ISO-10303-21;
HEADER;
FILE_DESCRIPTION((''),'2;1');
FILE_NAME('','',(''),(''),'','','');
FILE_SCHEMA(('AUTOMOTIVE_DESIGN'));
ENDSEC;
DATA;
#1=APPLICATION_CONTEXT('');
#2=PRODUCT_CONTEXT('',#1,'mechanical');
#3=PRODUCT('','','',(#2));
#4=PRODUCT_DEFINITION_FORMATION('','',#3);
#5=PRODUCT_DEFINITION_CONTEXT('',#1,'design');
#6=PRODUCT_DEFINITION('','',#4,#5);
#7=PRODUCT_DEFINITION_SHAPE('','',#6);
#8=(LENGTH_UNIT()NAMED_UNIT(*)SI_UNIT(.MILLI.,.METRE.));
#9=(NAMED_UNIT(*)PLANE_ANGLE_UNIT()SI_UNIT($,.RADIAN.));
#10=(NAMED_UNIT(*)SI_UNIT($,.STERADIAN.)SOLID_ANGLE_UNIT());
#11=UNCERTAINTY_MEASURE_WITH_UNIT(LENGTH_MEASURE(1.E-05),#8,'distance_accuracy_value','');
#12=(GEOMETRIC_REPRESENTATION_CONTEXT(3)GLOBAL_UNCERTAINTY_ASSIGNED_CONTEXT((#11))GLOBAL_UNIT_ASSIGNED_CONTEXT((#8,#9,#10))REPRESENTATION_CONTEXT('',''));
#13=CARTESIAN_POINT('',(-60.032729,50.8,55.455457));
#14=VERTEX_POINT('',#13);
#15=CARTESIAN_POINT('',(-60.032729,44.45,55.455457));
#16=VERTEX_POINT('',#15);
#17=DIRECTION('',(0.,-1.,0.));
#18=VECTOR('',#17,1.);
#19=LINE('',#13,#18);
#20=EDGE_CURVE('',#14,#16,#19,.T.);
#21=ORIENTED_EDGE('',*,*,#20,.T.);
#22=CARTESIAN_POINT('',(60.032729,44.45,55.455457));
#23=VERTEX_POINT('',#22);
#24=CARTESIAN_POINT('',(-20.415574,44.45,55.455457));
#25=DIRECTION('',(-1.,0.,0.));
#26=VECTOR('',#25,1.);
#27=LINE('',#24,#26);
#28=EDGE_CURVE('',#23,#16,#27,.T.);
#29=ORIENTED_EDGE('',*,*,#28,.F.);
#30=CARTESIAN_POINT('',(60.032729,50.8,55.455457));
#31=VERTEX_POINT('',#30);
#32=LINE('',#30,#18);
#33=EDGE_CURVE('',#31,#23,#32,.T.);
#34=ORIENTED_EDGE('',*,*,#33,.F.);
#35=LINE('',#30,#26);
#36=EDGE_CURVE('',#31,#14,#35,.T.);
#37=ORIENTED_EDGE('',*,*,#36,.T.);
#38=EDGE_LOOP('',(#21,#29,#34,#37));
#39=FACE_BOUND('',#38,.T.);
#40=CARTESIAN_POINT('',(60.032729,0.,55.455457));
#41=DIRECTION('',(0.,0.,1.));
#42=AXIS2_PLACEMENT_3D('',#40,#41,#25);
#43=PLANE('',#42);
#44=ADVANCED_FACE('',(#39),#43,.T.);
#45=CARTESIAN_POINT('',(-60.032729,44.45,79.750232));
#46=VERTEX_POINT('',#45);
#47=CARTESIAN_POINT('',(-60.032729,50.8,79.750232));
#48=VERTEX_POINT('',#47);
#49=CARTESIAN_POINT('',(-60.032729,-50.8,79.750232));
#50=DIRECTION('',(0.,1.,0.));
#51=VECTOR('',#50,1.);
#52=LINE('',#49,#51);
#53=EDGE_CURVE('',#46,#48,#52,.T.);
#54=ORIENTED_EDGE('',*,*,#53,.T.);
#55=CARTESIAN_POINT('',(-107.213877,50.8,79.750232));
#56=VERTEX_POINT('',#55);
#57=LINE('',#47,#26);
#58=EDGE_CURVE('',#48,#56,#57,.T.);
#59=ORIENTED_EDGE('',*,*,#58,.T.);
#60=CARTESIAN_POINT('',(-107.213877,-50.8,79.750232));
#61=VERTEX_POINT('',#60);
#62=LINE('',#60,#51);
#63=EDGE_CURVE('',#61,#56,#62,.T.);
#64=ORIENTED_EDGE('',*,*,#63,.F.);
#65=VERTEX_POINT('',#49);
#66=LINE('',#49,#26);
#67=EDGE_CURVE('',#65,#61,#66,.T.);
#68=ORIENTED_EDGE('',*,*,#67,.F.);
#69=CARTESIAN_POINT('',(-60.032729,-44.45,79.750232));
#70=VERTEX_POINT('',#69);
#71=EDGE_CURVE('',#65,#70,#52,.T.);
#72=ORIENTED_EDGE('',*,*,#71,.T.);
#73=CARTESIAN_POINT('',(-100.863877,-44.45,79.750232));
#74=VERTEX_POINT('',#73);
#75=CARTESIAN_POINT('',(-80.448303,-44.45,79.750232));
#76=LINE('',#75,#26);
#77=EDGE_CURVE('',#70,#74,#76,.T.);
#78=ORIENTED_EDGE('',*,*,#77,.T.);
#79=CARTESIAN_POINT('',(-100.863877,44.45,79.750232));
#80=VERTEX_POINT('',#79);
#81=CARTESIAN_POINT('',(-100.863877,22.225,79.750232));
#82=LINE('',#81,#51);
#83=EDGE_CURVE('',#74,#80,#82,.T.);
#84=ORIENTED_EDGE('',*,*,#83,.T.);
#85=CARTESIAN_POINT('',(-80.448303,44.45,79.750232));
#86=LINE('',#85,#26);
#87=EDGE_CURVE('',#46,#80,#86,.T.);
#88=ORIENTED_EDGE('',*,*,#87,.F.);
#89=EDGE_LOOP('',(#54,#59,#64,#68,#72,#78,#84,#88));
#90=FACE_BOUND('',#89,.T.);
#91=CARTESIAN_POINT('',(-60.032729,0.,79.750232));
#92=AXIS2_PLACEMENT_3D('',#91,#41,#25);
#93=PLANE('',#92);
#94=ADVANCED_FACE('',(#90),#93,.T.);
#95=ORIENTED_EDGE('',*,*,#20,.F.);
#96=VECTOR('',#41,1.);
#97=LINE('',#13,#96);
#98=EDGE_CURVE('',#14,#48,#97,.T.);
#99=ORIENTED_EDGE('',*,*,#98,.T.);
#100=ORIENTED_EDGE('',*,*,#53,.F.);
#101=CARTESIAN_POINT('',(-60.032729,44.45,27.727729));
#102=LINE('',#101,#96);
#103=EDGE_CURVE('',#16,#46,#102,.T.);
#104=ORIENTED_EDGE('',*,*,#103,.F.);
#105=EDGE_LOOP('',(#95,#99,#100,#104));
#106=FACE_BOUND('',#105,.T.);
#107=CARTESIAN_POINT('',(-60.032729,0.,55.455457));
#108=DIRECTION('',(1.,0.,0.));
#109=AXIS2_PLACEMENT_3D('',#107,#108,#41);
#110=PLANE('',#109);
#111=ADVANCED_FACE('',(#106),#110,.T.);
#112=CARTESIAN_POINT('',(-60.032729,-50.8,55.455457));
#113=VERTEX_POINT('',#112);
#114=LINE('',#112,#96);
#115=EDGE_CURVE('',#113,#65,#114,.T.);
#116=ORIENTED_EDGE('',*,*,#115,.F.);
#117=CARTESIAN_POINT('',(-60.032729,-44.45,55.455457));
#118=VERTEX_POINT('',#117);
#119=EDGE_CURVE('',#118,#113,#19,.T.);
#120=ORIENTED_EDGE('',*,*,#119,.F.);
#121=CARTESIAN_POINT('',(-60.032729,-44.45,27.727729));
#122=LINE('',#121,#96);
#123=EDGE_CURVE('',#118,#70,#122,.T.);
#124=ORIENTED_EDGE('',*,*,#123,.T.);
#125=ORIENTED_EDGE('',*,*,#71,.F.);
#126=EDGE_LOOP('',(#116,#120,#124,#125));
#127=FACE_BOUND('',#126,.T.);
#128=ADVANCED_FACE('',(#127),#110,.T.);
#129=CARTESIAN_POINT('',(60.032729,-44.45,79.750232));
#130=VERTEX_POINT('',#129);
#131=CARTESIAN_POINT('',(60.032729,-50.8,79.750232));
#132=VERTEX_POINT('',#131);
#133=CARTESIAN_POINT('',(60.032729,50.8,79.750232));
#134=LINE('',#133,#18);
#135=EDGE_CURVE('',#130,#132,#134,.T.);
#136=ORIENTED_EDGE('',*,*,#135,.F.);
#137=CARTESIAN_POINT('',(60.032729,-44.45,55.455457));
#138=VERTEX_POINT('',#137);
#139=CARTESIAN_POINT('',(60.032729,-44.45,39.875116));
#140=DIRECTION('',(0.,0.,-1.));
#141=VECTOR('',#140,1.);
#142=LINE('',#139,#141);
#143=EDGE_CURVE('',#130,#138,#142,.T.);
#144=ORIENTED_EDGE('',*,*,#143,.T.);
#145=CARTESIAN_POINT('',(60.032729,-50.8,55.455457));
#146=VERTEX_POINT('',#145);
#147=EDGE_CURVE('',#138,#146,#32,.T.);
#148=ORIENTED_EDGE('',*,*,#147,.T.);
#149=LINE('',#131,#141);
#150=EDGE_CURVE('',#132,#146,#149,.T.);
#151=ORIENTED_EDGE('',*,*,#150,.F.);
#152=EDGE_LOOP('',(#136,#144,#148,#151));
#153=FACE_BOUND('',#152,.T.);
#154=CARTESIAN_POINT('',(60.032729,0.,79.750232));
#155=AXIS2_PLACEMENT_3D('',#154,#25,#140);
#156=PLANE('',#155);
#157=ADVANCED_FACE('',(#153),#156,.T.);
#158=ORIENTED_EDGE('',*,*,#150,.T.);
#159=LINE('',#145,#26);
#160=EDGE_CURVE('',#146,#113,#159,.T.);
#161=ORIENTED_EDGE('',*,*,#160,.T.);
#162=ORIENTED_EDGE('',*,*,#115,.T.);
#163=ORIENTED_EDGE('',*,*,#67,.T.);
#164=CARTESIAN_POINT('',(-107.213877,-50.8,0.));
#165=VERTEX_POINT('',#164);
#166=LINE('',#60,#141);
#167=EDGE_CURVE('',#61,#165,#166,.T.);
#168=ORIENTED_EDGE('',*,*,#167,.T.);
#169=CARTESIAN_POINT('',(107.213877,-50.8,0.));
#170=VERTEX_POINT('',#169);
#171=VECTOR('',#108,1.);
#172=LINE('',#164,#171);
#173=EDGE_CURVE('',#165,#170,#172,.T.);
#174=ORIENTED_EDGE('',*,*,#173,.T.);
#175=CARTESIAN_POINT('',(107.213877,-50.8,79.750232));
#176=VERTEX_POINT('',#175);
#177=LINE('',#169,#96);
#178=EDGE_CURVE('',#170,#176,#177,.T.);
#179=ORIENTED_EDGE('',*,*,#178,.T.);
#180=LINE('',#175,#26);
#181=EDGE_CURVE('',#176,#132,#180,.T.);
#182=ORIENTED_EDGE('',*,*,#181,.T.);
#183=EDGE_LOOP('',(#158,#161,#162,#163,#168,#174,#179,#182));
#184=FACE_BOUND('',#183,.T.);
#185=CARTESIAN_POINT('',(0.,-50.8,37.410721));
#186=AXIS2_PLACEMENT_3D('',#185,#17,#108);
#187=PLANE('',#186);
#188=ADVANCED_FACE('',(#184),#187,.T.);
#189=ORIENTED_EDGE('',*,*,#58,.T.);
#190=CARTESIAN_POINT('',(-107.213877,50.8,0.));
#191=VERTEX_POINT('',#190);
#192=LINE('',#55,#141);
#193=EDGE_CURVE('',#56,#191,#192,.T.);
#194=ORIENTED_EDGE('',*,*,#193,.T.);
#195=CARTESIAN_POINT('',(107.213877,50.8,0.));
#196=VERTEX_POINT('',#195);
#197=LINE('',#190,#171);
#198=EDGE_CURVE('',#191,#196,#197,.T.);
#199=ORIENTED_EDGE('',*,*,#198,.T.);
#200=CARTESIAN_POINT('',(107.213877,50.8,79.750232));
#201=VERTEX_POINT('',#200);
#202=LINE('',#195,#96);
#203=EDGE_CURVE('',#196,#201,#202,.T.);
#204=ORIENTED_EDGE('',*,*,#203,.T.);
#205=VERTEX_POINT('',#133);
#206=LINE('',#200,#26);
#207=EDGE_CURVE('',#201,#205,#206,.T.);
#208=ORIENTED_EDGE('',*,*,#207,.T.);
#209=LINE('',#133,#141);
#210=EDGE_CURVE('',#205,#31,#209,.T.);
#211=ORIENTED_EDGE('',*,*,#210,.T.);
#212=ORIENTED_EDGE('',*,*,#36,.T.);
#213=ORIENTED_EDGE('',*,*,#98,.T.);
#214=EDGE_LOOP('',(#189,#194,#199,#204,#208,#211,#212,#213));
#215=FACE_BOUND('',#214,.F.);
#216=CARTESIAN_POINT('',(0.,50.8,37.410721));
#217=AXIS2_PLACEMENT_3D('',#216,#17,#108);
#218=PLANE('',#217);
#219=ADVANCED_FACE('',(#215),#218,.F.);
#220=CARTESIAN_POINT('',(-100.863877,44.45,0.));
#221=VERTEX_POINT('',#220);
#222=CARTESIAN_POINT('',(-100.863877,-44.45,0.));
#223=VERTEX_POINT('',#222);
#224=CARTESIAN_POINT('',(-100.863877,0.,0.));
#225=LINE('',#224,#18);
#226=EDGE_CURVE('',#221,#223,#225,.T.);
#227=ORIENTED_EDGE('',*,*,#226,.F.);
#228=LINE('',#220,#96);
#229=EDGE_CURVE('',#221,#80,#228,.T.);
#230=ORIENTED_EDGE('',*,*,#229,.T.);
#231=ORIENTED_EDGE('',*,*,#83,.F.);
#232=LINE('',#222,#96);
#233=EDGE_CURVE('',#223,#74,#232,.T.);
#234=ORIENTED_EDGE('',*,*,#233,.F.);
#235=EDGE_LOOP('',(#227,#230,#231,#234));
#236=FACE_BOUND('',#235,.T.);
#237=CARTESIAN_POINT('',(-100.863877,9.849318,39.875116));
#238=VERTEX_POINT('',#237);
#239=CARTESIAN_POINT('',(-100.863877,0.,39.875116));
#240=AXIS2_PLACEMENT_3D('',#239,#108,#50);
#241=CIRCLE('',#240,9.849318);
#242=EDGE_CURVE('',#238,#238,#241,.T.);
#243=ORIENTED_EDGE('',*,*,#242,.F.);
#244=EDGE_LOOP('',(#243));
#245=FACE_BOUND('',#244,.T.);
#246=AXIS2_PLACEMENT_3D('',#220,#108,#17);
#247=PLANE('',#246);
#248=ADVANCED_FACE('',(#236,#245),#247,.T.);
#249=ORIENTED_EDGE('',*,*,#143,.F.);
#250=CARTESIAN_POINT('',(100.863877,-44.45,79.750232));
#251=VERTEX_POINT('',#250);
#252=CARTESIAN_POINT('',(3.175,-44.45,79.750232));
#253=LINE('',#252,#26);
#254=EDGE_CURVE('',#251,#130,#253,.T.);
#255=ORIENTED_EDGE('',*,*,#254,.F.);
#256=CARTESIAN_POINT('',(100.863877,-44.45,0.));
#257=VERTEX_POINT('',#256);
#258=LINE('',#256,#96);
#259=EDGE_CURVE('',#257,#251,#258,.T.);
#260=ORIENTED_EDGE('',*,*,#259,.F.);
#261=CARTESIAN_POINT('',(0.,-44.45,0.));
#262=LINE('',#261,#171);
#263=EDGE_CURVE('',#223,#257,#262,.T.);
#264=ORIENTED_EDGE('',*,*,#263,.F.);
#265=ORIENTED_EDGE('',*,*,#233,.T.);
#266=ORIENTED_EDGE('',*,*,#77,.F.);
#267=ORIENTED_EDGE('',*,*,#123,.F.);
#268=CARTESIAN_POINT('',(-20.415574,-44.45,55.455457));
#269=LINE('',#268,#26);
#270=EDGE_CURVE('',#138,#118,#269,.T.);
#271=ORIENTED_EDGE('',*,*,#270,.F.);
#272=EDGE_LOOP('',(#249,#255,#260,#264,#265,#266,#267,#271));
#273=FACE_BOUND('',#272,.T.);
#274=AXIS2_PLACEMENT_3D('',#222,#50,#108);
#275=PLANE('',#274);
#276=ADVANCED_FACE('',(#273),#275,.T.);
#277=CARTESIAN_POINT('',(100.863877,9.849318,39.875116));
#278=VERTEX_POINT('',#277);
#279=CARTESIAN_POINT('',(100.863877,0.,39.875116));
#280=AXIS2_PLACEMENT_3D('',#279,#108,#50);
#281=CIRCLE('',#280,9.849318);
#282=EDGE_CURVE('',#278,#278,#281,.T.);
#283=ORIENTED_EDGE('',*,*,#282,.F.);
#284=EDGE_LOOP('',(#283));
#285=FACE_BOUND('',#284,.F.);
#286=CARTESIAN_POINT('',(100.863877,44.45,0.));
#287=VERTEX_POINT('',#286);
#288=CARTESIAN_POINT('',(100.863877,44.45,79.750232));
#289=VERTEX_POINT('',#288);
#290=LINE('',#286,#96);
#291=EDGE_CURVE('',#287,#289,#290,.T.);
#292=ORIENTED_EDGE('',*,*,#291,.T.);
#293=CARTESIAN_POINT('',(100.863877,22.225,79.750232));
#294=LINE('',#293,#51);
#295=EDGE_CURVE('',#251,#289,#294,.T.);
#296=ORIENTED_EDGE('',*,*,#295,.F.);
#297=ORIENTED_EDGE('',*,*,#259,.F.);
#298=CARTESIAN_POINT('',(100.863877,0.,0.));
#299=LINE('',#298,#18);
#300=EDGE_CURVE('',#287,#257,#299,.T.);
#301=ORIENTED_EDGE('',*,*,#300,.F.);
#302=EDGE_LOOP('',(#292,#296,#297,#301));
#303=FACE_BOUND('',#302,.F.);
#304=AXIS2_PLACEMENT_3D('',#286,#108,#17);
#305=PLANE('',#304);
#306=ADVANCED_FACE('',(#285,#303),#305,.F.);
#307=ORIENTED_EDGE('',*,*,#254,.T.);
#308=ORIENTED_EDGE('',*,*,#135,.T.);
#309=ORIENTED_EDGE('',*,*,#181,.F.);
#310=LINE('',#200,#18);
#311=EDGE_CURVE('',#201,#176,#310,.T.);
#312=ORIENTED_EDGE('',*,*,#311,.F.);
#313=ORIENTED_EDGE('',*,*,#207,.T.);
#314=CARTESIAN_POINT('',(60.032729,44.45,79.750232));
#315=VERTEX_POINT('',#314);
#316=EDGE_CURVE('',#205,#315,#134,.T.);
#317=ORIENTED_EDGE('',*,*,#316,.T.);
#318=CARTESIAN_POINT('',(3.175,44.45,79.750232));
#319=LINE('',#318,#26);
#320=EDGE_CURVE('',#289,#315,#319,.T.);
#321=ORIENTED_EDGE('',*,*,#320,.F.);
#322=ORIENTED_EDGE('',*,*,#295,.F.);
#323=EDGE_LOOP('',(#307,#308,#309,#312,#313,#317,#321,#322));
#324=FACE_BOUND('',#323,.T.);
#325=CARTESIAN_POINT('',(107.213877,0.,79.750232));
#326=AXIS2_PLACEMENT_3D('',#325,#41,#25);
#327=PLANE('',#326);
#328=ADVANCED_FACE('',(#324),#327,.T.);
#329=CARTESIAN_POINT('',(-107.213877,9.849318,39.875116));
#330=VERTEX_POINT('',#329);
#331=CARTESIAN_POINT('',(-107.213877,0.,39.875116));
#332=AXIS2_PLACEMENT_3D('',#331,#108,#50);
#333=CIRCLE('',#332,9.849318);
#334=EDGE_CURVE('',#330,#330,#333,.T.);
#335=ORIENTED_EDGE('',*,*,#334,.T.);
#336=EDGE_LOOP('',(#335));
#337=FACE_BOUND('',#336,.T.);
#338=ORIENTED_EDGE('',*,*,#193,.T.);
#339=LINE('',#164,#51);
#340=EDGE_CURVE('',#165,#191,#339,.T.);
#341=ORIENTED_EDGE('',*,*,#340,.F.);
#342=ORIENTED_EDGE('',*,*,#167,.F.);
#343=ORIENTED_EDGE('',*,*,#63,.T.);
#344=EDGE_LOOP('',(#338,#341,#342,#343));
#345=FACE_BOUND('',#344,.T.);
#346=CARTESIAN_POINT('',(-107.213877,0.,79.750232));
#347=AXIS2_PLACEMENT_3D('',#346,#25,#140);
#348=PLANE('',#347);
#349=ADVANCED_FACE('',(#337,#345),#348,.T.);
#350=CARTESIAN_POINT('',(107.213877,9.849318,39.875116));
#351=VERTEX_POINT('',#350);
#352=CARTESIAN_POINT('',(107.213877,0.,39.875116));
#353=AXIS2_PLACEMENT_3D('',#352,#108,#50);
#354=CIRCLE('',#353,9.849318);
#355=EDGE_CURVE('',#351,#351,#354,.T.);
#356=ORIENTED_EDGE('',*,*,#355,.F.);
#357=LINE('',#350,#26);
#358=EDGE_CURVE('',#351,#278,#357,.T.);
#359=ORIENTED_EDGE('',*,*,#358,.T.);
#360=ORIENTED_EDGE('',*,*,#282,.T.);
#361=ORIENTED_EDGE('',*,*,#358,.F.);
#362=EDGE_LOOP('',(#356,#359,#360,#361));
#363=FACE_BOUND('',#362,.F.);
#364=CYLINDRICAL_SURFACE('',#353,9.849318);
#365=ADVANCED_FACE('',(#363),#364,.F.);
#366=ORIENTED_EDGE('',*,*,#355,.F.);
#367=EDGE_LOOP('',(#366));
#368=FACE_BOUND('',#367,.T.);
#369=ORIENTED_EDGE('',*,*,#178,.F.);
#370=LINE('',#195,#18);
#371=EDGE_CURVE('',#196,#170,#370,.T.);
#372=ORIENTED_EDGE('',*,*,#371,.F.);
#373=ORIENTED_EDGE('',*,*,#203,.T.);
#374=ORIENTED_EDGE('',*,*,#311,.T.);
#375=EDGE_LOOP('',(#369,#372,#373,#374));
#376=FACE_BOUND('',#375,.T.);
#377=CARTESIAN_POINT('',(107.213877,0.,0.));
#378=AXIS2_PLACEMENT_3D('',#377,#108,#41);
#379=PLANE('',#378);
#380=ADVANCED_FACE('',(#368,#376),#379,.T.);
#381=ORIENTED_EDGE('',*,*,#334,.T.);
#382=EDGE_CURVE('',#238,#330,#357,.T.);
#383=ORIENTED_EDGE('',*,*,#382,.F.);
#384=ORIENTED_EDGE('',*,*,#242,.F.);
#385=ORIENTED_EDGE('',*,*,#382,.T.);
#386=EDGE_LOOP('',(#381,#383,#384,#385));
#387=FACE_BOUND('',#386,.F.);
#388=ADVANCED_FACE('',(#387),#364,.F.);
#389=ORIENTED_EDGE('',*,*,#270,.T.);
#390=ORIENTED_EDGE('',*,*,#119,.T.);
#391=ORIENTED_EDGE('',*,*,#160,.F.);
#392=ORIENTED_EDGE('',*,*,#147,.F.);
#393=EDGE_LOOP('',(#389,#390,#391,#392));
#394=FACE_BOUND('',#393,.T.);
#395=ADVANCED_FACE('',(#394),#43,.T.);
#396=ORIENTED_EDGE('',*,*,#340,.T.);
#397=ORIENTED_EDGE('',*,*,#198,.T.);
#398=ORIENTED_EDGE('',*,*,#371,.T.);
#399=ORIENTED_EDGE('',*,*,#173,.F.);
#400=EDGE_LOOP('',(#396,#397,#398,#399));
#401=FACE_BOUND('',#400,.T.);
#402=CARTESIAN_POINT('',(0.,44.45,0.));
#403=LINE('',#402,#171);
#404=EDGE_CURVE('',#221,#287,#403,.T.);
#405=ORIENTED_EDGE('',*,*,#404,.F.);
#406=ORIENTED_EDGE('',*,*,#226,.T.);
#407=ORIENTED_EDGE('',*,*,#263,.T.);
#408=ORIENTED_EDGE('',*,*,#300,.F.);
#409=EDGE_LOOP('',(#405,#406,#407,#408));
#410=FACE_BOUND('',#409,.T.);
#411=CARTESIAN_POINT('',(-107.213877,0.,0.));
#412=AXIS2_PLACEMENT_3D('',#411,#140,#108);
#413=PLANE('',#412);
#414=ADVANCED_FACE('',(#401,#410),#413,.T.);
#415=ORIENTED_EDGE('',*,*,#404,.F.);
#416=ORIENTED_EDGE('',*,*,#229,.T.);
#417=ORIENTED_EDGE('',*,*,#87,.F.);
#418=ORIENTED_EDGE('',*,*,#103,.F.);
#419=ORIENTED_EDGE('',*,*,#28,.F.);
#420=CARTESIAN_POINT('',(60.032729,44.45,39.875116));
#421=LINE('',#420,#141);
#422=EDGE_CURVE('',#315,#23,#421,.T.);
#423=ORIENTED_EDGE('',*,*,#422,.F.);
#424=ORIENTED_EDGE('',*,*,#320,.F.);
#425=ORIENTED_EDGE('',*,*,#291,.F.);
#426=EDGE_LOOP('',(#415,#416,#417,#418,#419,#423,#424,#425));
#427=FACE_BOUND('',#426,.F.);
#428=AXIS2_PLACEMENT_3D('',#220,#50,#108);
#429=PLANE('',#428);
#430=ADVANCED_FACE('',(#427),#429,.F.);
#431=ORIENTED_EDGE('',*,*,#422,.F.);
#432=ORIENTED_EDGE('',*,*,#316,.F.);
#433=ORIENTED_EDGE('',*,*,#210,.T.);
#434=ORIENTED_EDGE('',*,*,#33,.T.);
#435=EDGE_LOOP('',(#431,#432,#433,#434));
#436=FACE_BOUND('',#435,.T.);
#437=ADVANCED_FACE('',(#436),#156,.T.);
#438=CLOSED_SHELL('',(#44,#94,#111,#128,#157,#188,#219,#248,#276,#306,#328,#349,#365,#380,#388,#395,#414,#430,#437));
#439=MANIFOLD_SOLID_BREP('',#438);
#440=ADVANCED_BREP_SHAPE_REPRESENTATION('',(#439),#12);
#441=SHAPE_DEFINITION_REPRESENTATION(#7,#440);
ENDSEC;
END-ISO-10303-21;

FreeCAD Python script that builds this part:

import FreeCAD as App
import Part
import Sketcher
Q = App.Units.Quantity


def add_polygon(sketch, points):
    """Adds a closed chain of lines whose ends are joined by coincident constraints."""
    first, n = sketch.GeometryCount, len(points)
    for a, b in zip(points, points[1:] + points[:1]):
        sketch.addGeometry(Part.LineSegment(App.Vector(*a, 0), App.Vector(*b, 0)), False)
    for i in range(n):
        sketch.addConstraint(Sketcher.Constraint("Coincident", first + i, 2, first + (i + 1) % n, 1))

doc = App.newDocument("Part")
body = doc.addObject("PartDesign::Body", "Body")

sketch1 = body.newObject("Sketcher::SketchObject", "Sketch")
sketch1.AttachmentSupport = (doc.getObject("XZ_Plane"), [""])
sketch1.MapMode = "FlatFace"
add_polygon(sketch1, [(-107, 0), (107, 0), (107, 80), (60, 80), (60, 55), (-60, 55), (-60, 80), (-107, 80)])
sketch1.addConstraint(Sketcher.Constraint("Horizontal", 0))
sketch1.addConstraint(Sketcher.Constraint("Vertical", 1))
sketch1.addConstraint(Sketcher.Constraint("Horizontal", 2))
sketch1.addConstraint(Sketcher.Constraint("Vertical", 3))
sketch1.addConstraint(Sketcher.Constraint("Horizontal", 4))
sketch1.addConstraint(Sketcher.Constraint("Vertical", 5))
sketch1.addConstraint(Sketcher.Constraint("Horizontal", 6))
sketch1.addConstraint(Sketcher.Constraint("Vertical", 7))
sketch1.addConstraint(Sketcher.Constraint("Symmetric", 0, 2, 7, 2, -1, 1))
sketch1.addConstraint(Sketcher.Constraint("Symmetric", 2, 2, 5, 2, -2))
sketch1.addConstraint(Sketcher.Constraint("DistanceX", 4, 2, 4, 1, 120.065458))
sketch1.addConstraint(Sketcher.Constraint("DistanceY", 1, 1, 1, 2, 79.750232))
sketch1.addConstraint(Sketcher.Constraint("DistanceX", 0, 1, 0, 2, 214.427754))
sketch1.addConstraint(Sketcher.Constraint("DistanceY", 3, 2, 3, 1, 24.294775))
pad1 = body.newObject("PartDesign::Pad", "Pad")
pad1.Profile = sketch1
pad1.Type = "TwoLengths"
pad1.Length = Q("2 in")
pad1.Length2 = Q("2 in")

sketch2 = body.newObject("Sketcher::SketchObject", "Sketch001")
sketch2.AttachmentSupport = (doc.getObject("YZ_Plane"), [""])
sketch2.MapMode = "FlatFace"
sketch2.AttachmentOffset = App.Placement(App.Vector(0, 0, 107.213877), App.Rotation())
sketch2.addGeometry(Part.Circle(App.Vector(0, 40, 0), App.Vector(0, 0, 1), 10), False)
sketch2.addConstraint(Sketcher.Constraint("PointOnObject", 0, 3, -2))
sketch2.addConstraint(Sketcher.Constraint("Diameter", 0, 19.698636))
sketch2.addConstraint(Sketcher.Constraint("DistanceY", -1, 1, 0, 3, 39.875116))
pocket1 = body.newObject("PartDesign::Pocket", "Pocket")
pocket1.Profile = sketch2
pocket1.Type = "ThroughAll"

sketch3 = body.newObject("Sketcher::SketchObject", "Sketch002")
sketch3.AttachmentSupport = (doc.getObject("XY_Plane"), [""])
sketch3.MapMode = "FlatFace"
add_polygon(sketch3, [(-101, -44), (-101, 44), (101, 44), (101, -44)])
sketch3.addConstraint(Sketcher.Constraint("Vertical", 0))
sketch3.addConstraint(Sketcher.Constraint("Horizontal", 1))
sketch3.addConstraint(Sketcher.Constraint("Vertical", 2))
sketch3.addConstraint(Sketcher.Constraint("Horizontal", 3))
sketch3.addConstraint(Sketcher.Constraint("Symmetric", 0, 2, 2, 2, -1, 1))
sketch3.addConstraint(Sketcher.Constraint("DistanceY", 0, 1, 0, 2, Q("3.5 in")))
sketch3.addConstraint(Sketcher.Constraint("DistanceX", 1, 1, 1, 2, 201.727754))
pocket2 = body.newObject("PartDesign::Pocket", "Pocket001")
pocket2.Profile = sketch3
pocket2.Type = "ThroughAll"
pocket2.Reversed = True

doc.recompute()
